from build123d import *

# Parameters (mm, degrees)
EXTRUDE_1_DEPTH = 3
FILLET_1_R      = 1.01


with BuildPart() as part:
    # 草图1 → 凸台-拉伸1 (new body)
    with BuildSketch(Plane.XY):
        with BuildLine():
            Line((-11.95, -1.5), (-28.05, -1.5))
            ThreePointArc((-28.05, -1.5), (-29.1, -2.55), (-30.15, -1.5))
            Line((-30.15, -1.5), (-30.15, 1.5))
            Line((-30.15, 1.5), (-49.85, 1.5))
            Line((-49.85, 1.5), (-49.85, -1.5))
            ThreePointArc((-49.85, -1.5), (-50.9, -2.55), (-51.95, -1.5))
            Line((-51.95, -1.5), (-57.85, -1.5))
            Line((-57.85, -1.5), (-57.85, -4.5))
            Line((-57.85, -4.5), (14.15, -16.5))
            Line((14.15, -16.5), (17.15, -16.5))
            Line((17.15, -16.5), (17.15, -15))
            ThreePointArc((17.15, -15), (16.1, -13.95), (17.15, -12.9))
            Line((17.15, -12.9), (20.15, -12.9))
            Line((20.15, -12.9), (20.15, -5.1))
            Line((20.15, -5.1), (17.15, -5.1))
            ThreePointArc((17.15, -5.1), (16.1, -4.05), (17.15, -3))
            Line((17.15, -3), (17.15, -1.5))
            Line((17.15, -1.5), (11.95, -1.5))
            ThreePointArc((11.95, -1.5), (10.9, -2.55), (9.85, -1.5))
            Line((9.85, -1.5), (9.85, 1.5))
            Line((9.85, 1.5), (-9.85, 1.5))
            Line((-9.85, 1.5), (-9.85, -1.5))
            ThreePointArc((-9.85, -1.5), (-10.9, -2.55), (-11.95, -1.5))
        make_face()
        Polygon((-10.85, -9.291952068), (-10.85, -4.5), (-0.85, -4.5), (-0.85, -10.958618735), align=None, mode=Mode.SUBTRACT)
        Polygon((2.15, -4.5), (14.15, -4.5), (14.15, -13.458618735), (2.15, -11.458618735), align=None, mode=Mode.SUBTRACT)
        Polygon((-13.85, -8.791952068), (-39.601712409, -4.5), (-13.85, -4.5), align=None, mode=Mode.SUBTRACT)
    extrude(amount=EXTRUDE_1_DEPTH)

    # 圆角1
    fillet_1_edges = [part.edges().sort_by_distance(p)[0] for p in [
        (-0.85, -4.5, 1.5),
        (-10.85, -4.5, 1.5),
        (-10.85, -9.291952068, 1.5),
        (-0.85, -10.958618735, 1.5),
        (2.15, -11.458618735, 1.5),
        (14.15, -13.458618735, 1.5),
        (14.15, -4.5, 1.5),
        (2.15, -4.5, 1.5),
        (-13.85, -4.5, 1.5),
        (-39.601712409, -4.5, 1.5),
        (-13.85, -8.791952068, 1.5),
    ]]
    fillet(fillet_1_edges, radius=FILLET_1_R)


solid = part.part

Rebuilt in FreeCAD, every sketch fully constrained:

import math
import FreeCAD as App
import Part
import Sketcher

V = App.Vector
Q = App.Units.Quantity


def edges_at(feature, points):
    """Names of the edges that pass closest to the given points."""
    edges = feature.Shape.Edges
    near = lambda p: min(range(len(edges)), key=lambda i: edges[i].distToShape(Part.Vertex(*p))[0])
    return sorted({f"Edge{near(p) + 1}" for p in points})


def add_polygon(sketch, points):
    """Adds a closed chain of lines whose ends are joined by coincident constraints."""
    first, n = sketch.GeometryCount, len(points)
    for a, b in zip(points, points[1:] + points[:1]):
        sketch.addGeometry(Part.LineSegment(App.Vector(*a, 0), App.Vector(*b, 0)), False)
    for i in range(n):
        sketch.addConstraint(Sketcher.Constraint("Coincident", first + i, 2, first + (i + 1) % n, 1))

doc = App.newDocument("Part")
body = doc.addObject("PartDesign::Body", "Body")

sketch1 = body.newObject("Sketcher::SketchObject", "Sketch")
sketch1.AttachmentSupport = (doc.getObject("XY_Plane"), [""])
sketch1.MapMode = "FlatFace"
sketch1.addGeometry(Part.LineSegment(V(-11.9, -1.5, 0), V(-28.1, -1.5, 0)), False)
sketch1.addGeometry(Part.ArcOfCircle(Part.Circle(V(-29.1, -1.5, 0), V(0, 0, 1), 1.1), math.radians(180), math.radians(360)), False)
sketch1.addGeometry(Part.LineSegment(V(-30.1, -1.5, 0), V(-30.1, 1.5, 0)), False)
sketch1.addGeometry(Part.LineSegment(V(-30.1, 1.5, 0), V(-49.9, 1.5, 0)), False)
sketch1.addGeometry(Part.LineSegment(V(-49.9, 1.5, 0), V(-49.9, -1.5, 0)), False)
sketch1.addGeometry(Part.ArcOfCircle(Part.Circle(V(-50.9, -1.5, 0), V(0, 0, 1), 1.1), math.radians(180), math.radians(360)), False)
sketch1.addGeometry(Part.LineSegment(V(-52, -1.5, 0), V(-57.9, -1.5, 0)), False)
sketch1.addGeometry(Part.LineSegment(V(-57.9, -1.5, 0), V(-57.9, -4.5, 0)), False)
sketch1.addGeometry(Part.LineSegment(V(-57.9, -4.5, 0), V(14.2, -16.5, 0)), False)
sketch1.addGeometry(Part.LineSegment(V(14.2, -16.5, 0), V(17.1, -16.5, 0)), False)
sketch1.addGeometry(Part.LineSegment(V(17.1, -16.5, 0), V(17.1, -15, 0)), False)
sketch1.addGeometry(Part.ArcOfCircle(Part.Circle(V(17.1, -13.9, 0), V(0, 0, 1), 1.1), math.radians(90), math.radians(270)), False)
sketch1.addGeometry(Part.LineSegment(V(17.1, -12.9, 0), V(20.1, -12.9, 0)), False)
sketch1.addGeometry(Part.LineSegment(V(20.1, -12.9, 0), V(20.1, -5.1, 0)), False)
sketch1.addGeometry(Part.LineSegment(V(20.1, -5.1, 0), V(17.1, -5.1, 0)), False)
sketch1.addGeometry(Part.ArcOfCircle(Part.Circle(V(17.1, -4, 0), V(0, 0, 1), 1.1), math.radians(90), math.radians(270)), False)
sketch1.addGeometry(Part.LineSegment(V(17.1, -3, 0), V(17.1, -1.5, 0)), False)
sketch1.addGeometry(Part.LineSegment(V(17.1, -1.5, 0), V(11.9, -1.5, 0)), False)
sketch1.addGeometry(Part.ArcOfCircle(Part.Circle(V(10.9, -1.5, 0), V(0, 0, 1), 1.1), math.radians(180), math.radians(360)), False)
sketch1.addGeometry(Part.LineSegment(V(9.8, -1.5, 0), V(9.8, 1.5, 0)), False)
sketch1.addGeometry(Part.LineSegment(V(9.8, 1.5, 0), V(-9.8, 1.5, 0)), False)
sketch1.addGeometry(Part.LineSegment(V(-9.8, 1.5, 0), V(-9.8, -1.5, 0)), False)
sketch1.addGeometry(Part.ArcOfCircle(Part.Circle(V(-10.9, -1.5, 0), V(0, 0, 1), 1.1), math.radians(180), math.radians(360)), False)
add_polygon(sketch1, [(2.1, -11.5), (2.1, -4.5), (14.2, -4.5), (14.2, -13.5)])
add_polygon(sketch1, [(-13.8, -4.5), (-13.8, -8.8), (-39.6, -4.5)])
add_polygon(sketch1, [(-0.8, -11), (-10.8, -9.3), (-10.8, -4.5), (-0.8, -4.5)])
sketch1.addConstraint([
    Sketcher.Constraint("Coincident", 0, 2, 1, 2),
    Sketcher.Constraint("Tangent", 1, 1, 2, 1),
    Sketcher.Constraint("Coincident", 2, 2, 3, 1),
    Sketcher.Constraint("Coincident", 3, 2, 4, 1),
    Sketcher.Constraint("Tangent", 4, 2, 5, 2),
    Sketcher.Constraint("Coincident", 5, 1, 6, 1),
    Sketcher.Constraint("Coincident", 6, 2, 7, 1),
    Sketcher.Constraint("Coincident", 7, 2, 8, 1),
    Sketcher.Constraint("Coincident", 8, 2, 9, 1),
    Sketcher.Constraint("Coincident", 9, 2, 10, 1),
    Sketcher.Constraint("Coincident", 10, 2, 11, 2),
    Sketcher.Constraint("Tangent", 11, 1, 12, 1),
    Sketcher.Constraint("Coincident", 12, 2, 13, 1),
    Sketcher.Constraint("Coincident", 13, 2, 14, 1),
    Sketcher.Constraint("Tangent", 14, 2, 15, 2),
    Sketcher.Constraint("Coincident", 15, 1, 16, 1),
    Sketcher.Constraint("Coincident", 16, 2, 17, 1),
    Sketcher.Constraint("Coincident", 17, 2, 18, 2),
    Sketcher.Constraint("Tangent", 18, 1, 19, 1),
    Sketcher.Constraint("Coincident", 19, 2, 20, 1),
    Sketcher.Constraint("Coincident", 20, 2, 21, 1),
    Sketcher.Constraint("Tangent", 21, 2, 22, 2),
    Sketcher.Constraint("Coincident", 22, 1, 0, 1),
    Sketcher.Constraint("Horizontal", 0),
    Sketcher.Constraint("Vertical", 2),
    Sketcher.Constraint("Horizontal", 3),
    Sketcher.Constraint("Vertical", 4),
    Sketcher.Constraint("Horizontal", 6),
    Sketcher.Constraint("Vertical", 7),
    Sketcher.Constraint("Horizontal", 9),
    Sketcher.Constraint("Vertical", 10),
    Sketcher.Constraint("Horizontal", 12),
    Sketcher.Constraint("Vertical", 13),
    Sketcher.Constraint("Horizontal", 14),
    Sketcher.Constraint("Vertical", 16),
    Sketcher.Constraint("Horizontal", 17),
    Sketcher.Constraint("Vertical", 19),
    Sketcher.Constraint("Horizontal", 20),
    Sketcher.Constraint("Vertical", 21),
    Sketcher.Constraint("Vertical", 23),
    Sketcher.Constraint("Horizontal", 24),
    Sketcher.Constraint("Vertical", 25),
    Sketcher.Constraint("Vertical", 27),
    Sketcher.Constraint("Horizontal", 29),
    Sketcher.Constraint("Vertical", 31),
    Sketcher.Constraint("Horizontal", 32),
    Sketcher.Constraint("Vertical", 33),
    Sketcher.Constraint("Equal", 1, 5),
    Sketcher.Constraint("Equal", 5, 11),
    Sketcher.Constraint("Equal", 11, 15),
    Sketcher.Constraint("Equal", 15, 18),
    Sketcher.Constraint("Equal", 18, 22),
    Sketcher.Constraint("Symmetric", 18, 1, 20, 2, -1, 1),
    Sketcher.Constraint("Parallel", 8, 26),
    Sketcher.Constraint("Parallel", 26, 28),
    Sketcher.Constraint("Parallel", 28, 30),
    Sketcher.Constraint("Horizontal", 1, 3, 5, 3),
    Sketcher.Constraint("Horizontal", 5, 3, 18, 3),
    Sketcher.Constraint("Horizontal", 18, 3, 22, 3),
    Sketcher.Constraint("Horizontal", 22, 3, 0, 2),
    Sketcher.Constraint("Horizontal", 4, 2, 5, 1),
    Sketcher.Constraint("Horizontal", 6, 2, 16, 2),
    Sketcher.Constraint("Horizontal", 3, 2, 19, 2),
    Sketcher.Constraint("Horizontal", 7, 2, 23, 2),
    Sketcher.Constraint("Horizontal", 24, 2, 28, 2),
    Sketcher.Constraint("Horizontal", 29, 2, 31, 2),
    Sketcher.Constraint("Vertical", 11, 3, 15, 3),
    Sketcher.Constraint("Vertical", 15, 3, 9, 2),
    Sketcher.Constraint("Vertical", 14, 2, 15, 1),
    Sketcher.Constraint("Vertical", 8, 2, 24, 2),
    Sketcher.Constraint("Equal", 9, 12),
    Sketcher.Constraint("Equal", 3, 20),
    Sketcher.Constraint("Equal", 14, 2),
    Sketcher.Constraint("Equal", 4, 7),
    Sketcher.Constraint("Equal", 10, 16),
    Sketcher.Constraint("DistanceX", 9, 1, 9, 2, Q("3 mm")),
    Sketcher.Constraint("DistanceX", 24, 1, 24, 2, Q("12 mm")),
    Sketcher.Constraint("DistanceX", 32, 1, 32, 2, Q("10 mm")),
    Sketcher.Constraint("Radius", 1, Q("1.05 mm")),
    Sketcher.Constraint("DistanceX", 0, 2, 0, 1, Q("16.1 mm")),
    Sketcher.Constraint("DistanceX", 3, 2, 3, 1, Q("19.7 mm")),
    Sketcher.Constraint("DistanceX", 6, 2, 6, 1, Q("5.9 mm")),
    Sketcher.Constraint("DistanceX", 17, 2, 17, 1, Q("5.2 mm")),
    Sketcher.Constraint("DistanceY", 10, 1, 10, 2, Q("1.5 mm")),
    Sketcher.Constraint("DistanceY", 13, 1, 13, 2, Q("7.8 mm")),
    Sketcher.Constraint("DistanceX", 27, 2, 21, 2, Q("4 mm")),
    Sketcher.Constraint("DistanceX", 27, 2, 30, 2, Q("3 mm")),
    Sketcher.Constraint("DistanceY", 30, 2, 27, 2, Q("0.5 mm")),
    Sketcher.Constraint("DistanceY", 26, 2, 33, 2, Q("0.5 mm")),
    Sketcher.Constraint("DistanceY", 23, 1, 23, 2, Q("6.958619 mm")),
])
pad1 = body.newObject("PartDesign::Pad", "Pad")
pad1.Profile = sketch1
pad1.Length = 3
doc.recompute()

fillet = body.newObject("PartDesign::Fillet", "Fillet")
fillet.Base = (pad1, edges_at(pad1, [
    (-0.85, -4.5, 1.5),
    (-10.85, -4.5, 1.5),
    (-10.85, -9.292, 1.5),
    (-0.85, -10.959, 1.5),
    (2.15, -11.459, 1.5),
    (14.15, -13.459, 1.5),
    (14.15, -4.5, 1.5),
    (2.15, -4.5, 1.5),
    (-13.85, -4.5, 1.5),
    (-39.602, -4.5, 1.5),
    (-13.85, -8.792, 1.5),
]))
fillet.Radius = 1.01

doc.recompute()
